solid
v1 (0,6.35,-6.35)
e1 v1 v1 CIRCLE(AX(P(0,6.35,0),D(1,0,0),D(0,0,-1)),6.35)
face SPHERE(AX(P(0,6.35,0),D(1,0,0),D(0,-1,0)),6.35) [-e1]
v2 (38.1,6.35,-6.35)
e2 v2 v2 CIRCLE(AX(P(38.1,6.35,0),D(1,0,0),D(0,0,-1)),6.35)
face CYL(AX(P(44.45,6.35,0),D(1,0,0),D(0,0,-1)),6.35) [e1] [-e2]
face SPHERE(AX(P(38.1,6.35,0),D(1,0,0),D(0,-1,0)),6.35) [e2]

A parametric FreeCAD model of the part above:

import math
import FreeCAD as App
import Part
import Sketcher
from FreeCAD import Vector
Q = App.Units.Quantity

doc = App.newDocument("Part")
body = doc.addObject("PartDesign::Body", "Body")

sketch1 = body.newObject("Sketcher::SketchObject", "Sketch")
sketch1.AttachmentSupport = (doc.getObject("XY_Plane"), [""])
sketch1.MapMode = "FlatFace"
sketch1.addGeometry([
    Part.LineSegment(Vector(0, 0, 0), Vector(38, 0, 0)),
    Part.ArcOfCircle(Part.Circle(Vector(38, 6, 0), Vector(0, 0, 1), 6), math.radians(-90), math.radians(0)),
    Part.LineSegment(Vector(44, 6, 0), Vector(-6, 6, 0)),
    Part.ArcOfCircle(Part.Circle(Vector(0, 6, 0), Vector(0, 0, 1), 6), math.radians(180), math.radians(270)),
], False)
sketch1.addGeometry(Part.LineSegment(Vector(44, 6, 0), Vector(-6, 6, 0)), True)
sketch1.addConstraint([
    Sketcher.Constraint("Tangent", 0, 2, 1, 1),
    Sketcher.Constraint("Coincident", 1, 2, 2, 1),
    Sketcher.Constraint("Coincident", 2, 2, 3, 1),
    Sketcher.Constraint("Tangent", 3, 2, 0, 1),
    Sketcher.Constraint("Horizontal", 0),
    Sketcher.Constraint("Horizontal", 2),
    Sketcher.Constraint("Horizontal", 4),
    Sketcher.Constraint("Coincident", 3, 2, -1, 1),
    Sketcher.Constraint("Coincident", 4, 1, 1, 2),
    Sketcher.Constraint("Equal", 1, 3),
    Sketcher.Constraint("Horizontal", 3, 3, 1, 2),
    Sketcher.Constraint("Equal", 2, 4),
    Sketcher.Constraint("DistanceX", 2, 2, 2, 1, Q("2 in")),
    Sketcher.Constraint("Radius", 1, Q("0.25 in")),
])
revolution = body.newObject("PartDesign::Revolution", "Revolution")
revolution.Profile = sketch1
revolution.ReferenceAxis = (sketch1, ["Axis0"])
revolution.Angle = 360

doc.recompute()
